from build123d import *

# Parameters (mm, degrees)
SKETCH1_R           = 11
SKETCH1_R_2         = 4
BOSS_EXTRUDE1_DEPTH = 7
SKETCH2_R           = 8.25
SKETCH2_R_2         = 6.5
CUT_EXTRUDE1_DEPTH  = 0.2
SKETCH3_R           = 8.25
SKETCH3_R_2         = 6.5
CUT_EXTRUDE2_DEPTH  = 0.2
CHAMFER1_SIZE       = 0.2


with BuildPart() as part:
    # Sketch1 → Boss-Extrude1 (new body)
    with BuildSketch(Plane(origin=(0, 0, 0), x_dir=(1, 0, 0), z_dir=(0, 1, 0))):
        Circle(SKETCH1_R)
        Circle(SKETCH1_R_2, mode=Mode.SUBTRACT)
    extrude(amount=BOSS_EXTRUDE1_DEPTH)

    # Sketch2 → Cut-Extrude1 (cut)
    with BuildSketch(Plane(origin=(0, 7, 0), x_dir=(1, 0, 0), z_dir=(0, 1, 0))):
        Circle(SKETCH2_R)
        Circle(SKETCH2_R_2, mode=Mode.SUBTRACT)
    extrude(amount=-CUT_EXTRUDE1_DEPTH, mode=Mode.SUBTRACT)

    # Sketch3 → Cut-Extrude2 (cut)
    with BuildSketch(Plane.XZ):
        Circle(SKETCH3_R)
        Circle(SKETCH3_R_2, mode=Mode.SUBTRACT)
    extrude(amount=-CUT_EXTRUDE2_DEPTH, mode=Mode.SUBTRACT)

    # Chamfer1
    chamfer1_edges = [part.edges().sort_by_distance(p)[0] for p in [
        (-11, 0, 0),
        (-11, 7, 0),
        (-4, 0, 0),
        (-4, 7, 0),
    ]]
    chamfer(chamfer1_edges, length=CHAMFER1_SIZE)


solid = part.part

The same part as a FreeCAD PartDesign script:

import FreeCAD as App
import Part
import Sketcher
from FreeCAD import Vector


def edges_at(feature, points):
    """Names of the edges that pass closest to the given points."""
    edges = feature.Shape.Edges
    near = lambda p: min(range(len(edges)), key=lambda i: edges[i].distToShape(Part.Vertex(*p))[0])
    return sorted({f"Edge{near(p) + 1}" for p in points})

doc = App.newDocument("Part")
body = doc.addObject("PartDesign::Body", "Body")

sketch1 = body.newObject("Sketcher::SketchObject", "Sketch")
sketch1.AttachmentSupport = (doc.getObject("XZ_Plane"), [""])
sketch1.MapMode = "FlatFace"
sketch1.addGeometry(Part.Circle(Vector(0, 0, 0), Vector(0, 0, 1), 11), False)
sketch1.addGeometry(Part.Circle(Vector(0, 0, 0), Vector(0, 0, 1), 4), False)
sketch1.addConstraint(Sketcher.Constraint("Coincident", 0, 3, -1, 1))
sketch1.addConstraint(Sketcher.Constraint("Coincident", 1, 3, -1, 1))
sketch1.addConstraint(Sketcher.Constraint("Diameter", 0, 22.0))
sketch1.addConstraint(Sketcher.Constraint("Diameter", 1, 8.0))
pad1 = body.newObject("PartDesign::Pad", "Pad")
pad1.Profile = sketch1
pad1.Length = 7
pad1.Reversed = True

sketch2 = body.newObject("Sketcher::SketchObject", "Sketch001")
sketch2.AttachmentSupport = (doc.getObject("XZ_Plane"), [""])
sketch2.MapMode = "FlatFace"
sketch2.AttachmentOffset = App.Placement(Vector(0, 0, -7), App.Rotation())
sketch2.addGeometry(Part.Circle(Vector(0, 0, 0), Vector(0, 0, 1), 8), False)
sketch2.addGeometry(Part.Circle(Vector(0, 0, 0), Vector(0, 0, 1), 6), False)
sketch2.addConstraint(Sketcher.Constraint("Coincident", 0, 3, -1, 1))
sketch2.addConstraint(Sketcher.Constraint("Coincident", 1, 3, -1, 1))
sketch2.addConstraint(Sketcher.Constraint("Diameter", 1, 13.0))
sketch2.addConstraint(Sketcher.Constraint("Diameter", 0, 16.5))
pocket1 = body.newObject("PartDesign::Pocket", "Pocket")
pocket1.Profile = sketch2
pocket1.Length = 0.2
pocket1.Reversed = True

sketch3 = body.newObject("Sketcher::SketchObject", "Sketch002")
sketch3.AttachmentSupport = (doc.getObject("XZ_Plane"), [""])
sketch3.MapMode = "FlatFace"
sketch3.addGeometry(Part.Circle(Vector(0, 0, 0), Vector(0, 0, 1), 8), False)
sketch3.addGeometry(Part.Circle(Vector(0, 0, 0), Vector(0, 0, 1), 6), False)
sketch3.addConstraint(Sketcher.Constraint("Coincident", 0, 3, -1, 1))
sketch3.addConstraint(Sketcher.Constraint("Coincident", 1, 3, -1, 1))
sketch3.addConstraint(Sketcher.Constraint("Diameter", 1, 13.0))
sketch3.addConstraint(Sketcher.Constraint("Diameter", 0, 16.5))
pocket2 = body.newObject("PartDesign::Pocket", "Pocket001")
pocket2.Profile = sketch3
pocket2.Length = 0.2
doc.recompute()

chamfer = body.newObject("PartDesign::Chamfer", "Chamfer")
chamfer.Base = (pocket2, edges_at(pocket2, [
    (-11, 0, 0),
    (-11, 7, 0),
    (-4, 0, 0),
    (-4, 7, 0),
]))
chamfer.Size = 0.2

doc.recompute()
